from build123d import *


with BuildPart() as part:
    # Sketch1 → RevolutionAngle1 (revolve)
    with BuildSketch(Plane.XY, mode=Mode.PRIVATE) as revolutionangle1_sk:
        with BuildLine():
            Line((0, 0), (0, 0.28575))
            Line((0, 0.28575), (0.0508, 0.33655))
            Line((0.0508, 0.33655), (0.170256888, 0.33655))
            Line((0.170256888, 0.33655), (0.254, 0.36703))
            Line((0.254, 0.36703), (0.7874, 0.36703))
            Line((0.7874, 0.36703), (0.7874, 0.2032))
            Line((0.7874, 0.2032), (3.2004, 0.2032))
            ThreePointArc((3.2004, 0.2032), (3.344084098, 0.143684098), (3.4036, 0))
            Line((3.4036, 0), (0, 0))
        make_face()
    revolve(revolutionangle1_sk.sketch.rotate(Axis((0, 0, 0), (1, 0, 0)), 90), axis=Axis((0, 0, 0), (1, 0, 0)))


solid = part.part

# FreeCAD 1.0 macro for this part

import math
import FreeCAD as App
import Part
import Sketcher
Q = App.Units.Quantity

doc = App.newDocument("Part")
body = doc.addObject("PartDesign::Body", "Body")

# Sketch on XY plane
sketch1 = body.newObject("Sketcher::SketchObject", "Sketch")
sketch1.AttachmentSupport = (doc.getObject("XY_Plane"), [""])
sketch1.MapMode = "FlatFace"
sketch1.addGeometry(Part.LineSegment(App.Vector(0, 0.28575, 0), App.Vector(0, 0, 0)), False)
sketch1.addGeometry(Part.LineSegment(App.Vector(0, 0, 0), App.Vector(3.4036, 0, 0)), False)
sketch1.addGeometry(Part.ArcOfCircle(Part.Circle(App.Vector(3.2004, 0, 0), App.Vector(0, 0, 1), 0.2032), math.radians(0), math.radians(90)), False)
sketch1.addGeometry(Part.LineSegment(App.Vector(3.2004, 0.2032, 0), App.Vector(0.7874, 0.2032, 0)), False)
sketch1.addGeometry(Part.LineSegment(App.Vector(0.7874, 0.2032, 0), App.Vector(0.7874, 0.36703, 0)), False)
sketch1.addGeometry(Part.LineSegment(App.Vector(0.7874, 0.36703, 0), App.Vector(0.254, 0.36703, 0)), False)
sketch1.addGeometry(Part.LineSegment(App.Vector(0.254, 0.36703, 0), App.Vector(0.170257, 0.33655, 0)), False)
sketch1.addGeometry(Part.LineSegment(App.Vector(0.170257, 0.33655, 0), App.Vector(0.0508, 0.33655, 0)), False)
sketch1.addGeometry(Part.LineSegment(App.Vector(0.0508, 0.33655, 0), App.Vector(0, 0.28575, 0)), False)
sketch1.addConstraint(Sketcher.Constraint("Coincident", 0, 2, 1, 1))
sketch1.addConstraint(Sketcher.Constraint("Coincident", 1, 2, 2, 1))
sketch1.addConstraint(Sketcher.Constraint("Tangent", 2, 2, 3, 1))
sketch1.addConstraint(Sketcher.Constraint("Coincident", 3, 2, 4, 1))
sketch1.addConstraint(Sketcher.Constraint("Coincident", 4, 2, 5, 1))
sketch1.addConstraint(Sketcher.Constraint("Coincident", 5, 2, 6, 1))
sketch1.addConstraint(Sketcher.Constraint("Coincident", 6, 2, 7, 1))
sketch1.addConstraint(Sketcher.Constraint("Coincident", 7, 2, 8, 1))
sketch1.addConstraint(Sketcher.Constraint("Coincident", 8, 2, 0, 1))
sketch1.addConstraint(Sketcher.Constraint("Vertical", 0))
sketch1.addConstraint(Sketcher.Constraint("Horizontal", 1))
sketch1.addConstraint(Sketcher.Constraint("Horizontal", 3))
sketch1.addConstraint(Sketcher.Constraint("Vertical", 4))
sketch1.addConstraint(Sketcher.Constraint("Horizontal", 5))
sketch1.addConstraint(Sketcher.Constraint("Horizontal", 7))
sketch1.addConstraint(Sketcher.Constraint("Coincident", 0, 2, -1, 1))
sketch1.addConstraint(Sketcher.Constraint("PointOnObject", 2, 3, -1))
sketch1.addConstraint(Sketcher.Constraint("Angle", 6, Q("-160 deg")))
sketch1.addConstraint(Sketcher.Constraint("Angle", 8, Q("-135 deg")))
sketch1.addConstraint(Sketcher.Constraint("Radius", 2, Q("0.008 in")))
sketch1.addConstraint(Sketcher.Constraint("DistanceX", 1, 1, 1, 2, Q("0.134 in")))
sketch1.addConstraint(Sketcher.Constraint("DistanceX", 3, 2, 3, 1, Q("0.095 in")))
sketch1.addConstraint(Sketcher.Constraint("DistanceX", 5, 2, 5, 1, Q("0.021 in")))
sketch1.addConstraint(Sketcher.Constraint("DistanceX", -1, 1, 7, 2, Q("0.002 in")))
sketch1.addConstraint(Sketcher.Constraint("DistanceY", 6, 2, 5, 2, Q("0.0012 in")))
sketch1.addConstraint(Sketcher.Constraint("DistanceY", 0, 2, 0, 1, 0.28575))
revolution = body.newObject("PartDesign::Revolution", "Revolution")
revolution.Profile = sketch1
revolution.ReferenceAxis = (sketch1, ["H_Axis"])
revolution.Angle = 360

doc.recompute()
